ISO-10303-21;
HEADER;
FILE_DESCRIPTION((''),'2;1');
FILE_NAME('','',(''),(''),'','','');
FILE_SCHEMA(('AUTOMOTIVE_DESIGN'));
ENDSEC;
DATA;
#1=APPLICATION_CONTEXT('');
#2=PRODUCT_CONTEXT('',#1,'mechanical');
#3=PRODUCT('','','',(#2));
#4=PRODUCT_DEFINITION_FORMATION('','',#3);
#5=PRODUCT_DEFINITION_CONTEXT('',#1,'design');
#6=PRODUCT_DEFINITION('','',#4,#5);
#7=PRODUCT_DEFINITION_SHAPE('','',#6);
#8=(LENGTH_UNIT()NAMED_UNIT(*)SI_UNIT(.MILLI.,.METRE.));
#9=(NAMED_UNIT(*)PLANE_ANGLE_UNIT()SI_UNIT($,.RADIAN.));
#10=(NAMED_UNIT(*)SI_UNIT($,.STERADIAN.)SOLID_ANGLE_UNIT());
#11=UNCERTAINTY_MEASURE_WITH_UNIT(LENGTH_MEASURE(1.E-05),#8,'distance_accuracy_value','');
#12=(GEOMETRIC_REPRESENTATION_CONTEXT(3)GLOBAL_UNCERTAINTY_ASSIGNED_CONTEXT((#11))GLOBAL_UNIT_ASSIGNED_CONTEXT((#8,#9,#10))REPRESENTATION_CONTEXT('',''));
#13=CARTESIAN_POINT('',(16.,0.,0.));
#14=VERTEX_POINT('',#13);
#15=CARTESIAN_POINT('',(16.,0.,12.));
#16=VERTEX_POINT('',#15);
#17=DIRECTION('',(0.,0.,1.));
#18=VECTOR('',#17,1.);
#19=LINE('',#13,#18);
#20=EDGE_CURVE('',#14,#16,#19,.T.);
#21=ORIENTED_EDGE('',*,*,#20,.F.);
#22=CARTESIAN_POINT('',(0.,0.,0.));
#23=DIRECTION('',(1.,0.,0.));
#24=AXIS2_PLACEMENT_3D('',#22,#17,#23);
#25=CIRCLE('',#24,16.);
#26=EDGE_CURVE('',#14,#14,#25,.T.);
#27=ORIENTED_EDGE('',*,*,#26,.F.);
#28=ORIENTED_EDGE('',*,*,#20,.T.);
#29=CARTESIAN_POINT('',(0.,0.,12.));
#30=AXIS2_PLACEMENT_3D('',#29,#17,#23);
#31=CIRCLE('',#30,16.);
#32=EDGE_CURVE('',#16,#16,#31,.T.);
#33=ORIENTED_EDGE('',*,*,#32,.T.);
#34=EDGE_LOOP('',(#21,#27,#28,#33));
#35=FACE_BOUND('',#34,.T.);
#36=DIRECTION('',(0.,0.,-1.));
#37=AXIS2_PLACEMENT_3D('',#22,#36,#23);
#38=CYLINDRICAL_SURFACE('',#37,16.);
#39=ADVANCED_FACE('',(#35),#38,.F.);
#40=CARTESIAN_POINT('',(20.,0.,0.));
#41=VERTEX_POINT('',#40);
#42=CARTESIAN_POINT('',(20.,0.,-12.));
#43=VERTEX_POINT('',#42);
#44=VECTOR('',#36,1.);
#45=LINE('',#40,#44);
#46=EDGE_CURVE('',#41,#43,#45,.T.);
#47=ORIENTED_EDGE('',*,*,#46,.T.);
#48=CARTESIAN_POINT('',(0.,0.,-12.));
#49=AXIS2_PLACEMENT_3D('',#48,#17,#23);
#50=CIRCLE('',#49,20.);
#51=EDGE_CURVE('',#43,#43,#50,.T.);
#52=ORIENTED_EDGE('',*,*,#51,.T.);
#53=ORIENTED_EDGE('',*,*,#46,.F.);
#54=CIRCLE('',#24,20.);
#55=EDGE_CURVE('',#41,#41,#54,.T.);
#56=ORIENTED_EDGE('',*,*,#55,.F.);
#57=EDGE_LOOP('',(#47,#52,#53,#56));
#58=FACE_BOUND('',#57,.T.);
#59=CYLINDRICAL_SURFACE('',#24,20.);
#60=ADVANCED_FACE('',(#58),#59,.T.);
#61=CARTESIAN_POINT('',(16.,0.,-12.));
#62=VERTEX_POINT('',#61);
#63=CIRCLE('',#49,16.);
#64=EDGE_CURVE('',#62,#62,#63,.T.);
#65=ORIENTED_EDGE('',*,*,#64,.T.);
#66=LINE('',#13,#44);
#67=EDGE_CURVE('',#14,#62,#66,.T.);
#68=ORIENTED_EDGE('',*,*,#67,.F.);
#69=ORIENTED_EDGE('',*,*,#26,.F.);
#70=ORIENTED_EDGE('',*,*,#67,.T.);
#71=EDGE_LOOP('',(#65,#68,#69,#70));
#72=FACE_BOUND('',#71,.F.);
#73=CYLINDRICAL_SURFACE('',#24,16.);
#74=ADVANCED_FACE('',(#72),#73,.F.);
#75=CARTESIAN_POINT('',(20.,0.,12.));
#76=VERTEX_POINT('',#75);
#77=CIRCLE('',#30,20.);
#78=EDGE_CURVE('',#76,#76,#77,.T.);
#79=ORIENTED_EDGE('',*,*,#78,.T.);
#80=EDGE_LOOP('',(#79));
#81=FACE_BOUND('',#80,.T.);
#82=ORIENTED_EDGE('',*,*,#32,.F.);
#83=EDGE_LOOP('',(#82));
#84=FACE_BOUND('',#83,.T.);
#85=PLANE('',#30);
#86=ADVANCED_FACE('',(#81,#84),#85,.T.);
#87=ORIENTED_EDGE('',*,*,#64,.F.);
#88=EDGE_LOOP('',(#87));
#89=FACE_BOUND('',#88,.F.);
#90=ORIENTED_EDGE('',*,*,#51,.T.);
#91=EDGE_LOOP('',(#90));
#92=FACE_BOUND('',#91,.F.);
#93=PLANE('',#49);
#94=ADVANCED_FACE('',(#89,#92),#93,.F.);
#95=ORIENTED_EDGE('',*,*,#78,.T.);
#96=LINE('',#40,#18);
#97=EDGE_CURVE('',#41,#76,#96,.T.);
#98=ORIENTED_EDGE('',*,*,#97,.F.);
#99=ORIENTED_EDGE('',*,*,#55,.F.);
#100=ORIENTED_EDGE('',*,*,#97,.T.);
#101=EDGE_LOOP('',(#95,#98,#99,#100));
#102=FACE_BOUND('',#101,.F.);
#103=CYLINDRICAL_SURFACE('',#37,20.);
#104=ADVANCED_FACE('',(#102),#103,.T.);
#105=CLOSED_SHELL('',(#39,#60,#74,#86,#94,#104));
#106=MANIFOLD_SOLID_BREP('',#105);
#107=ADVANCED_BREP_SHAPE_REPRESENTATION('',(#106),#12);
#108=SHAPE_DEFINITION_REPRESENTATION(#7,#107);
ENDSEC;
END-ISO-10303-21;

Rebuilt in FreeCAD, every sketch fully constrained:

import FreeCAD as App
import Part
import Sketcher
from FreeCAD import Vector

doc = App.newDocument("Part")
body = doc.addObject("PartDesign::Body", "Body")

# Sketch on XY plane
sketch1 = doc.addObject("Sketcher::SketchObject", "Sketch")
body.addObject(sketch1)
sketch1.AttachmentSupport = (doc.XY_Plane, [""])
sketch1.MapMode = "FlatFace"
sketch1.addGeometry([
    Part.Circle(Vector(0, 0, 0), Vector(0, 0, 1), 20),
    Part.Circle(Vector(0, 0, 0), Vector(0, 0, 1), 16),
], False)
sketch1.addConstraint([
    Sketcher.Constraint("Coincident", 0, 3, -1, 1),
    Sketcher.Constraint("Coincident", 1, 3, -1, 1),
    Sketcher.Constraint("Diameter", 0, 40.0),
    Sketcher.Constraint("Diameter", 1, 32.0),
])
pad1 = doc.addObject("PartDesign::Pad", "Pad")
body.addObject(pad1)
pad1.Profile = sketch1
pad1.Length = 24
pad1.Midplane = True

doc.recompute()
